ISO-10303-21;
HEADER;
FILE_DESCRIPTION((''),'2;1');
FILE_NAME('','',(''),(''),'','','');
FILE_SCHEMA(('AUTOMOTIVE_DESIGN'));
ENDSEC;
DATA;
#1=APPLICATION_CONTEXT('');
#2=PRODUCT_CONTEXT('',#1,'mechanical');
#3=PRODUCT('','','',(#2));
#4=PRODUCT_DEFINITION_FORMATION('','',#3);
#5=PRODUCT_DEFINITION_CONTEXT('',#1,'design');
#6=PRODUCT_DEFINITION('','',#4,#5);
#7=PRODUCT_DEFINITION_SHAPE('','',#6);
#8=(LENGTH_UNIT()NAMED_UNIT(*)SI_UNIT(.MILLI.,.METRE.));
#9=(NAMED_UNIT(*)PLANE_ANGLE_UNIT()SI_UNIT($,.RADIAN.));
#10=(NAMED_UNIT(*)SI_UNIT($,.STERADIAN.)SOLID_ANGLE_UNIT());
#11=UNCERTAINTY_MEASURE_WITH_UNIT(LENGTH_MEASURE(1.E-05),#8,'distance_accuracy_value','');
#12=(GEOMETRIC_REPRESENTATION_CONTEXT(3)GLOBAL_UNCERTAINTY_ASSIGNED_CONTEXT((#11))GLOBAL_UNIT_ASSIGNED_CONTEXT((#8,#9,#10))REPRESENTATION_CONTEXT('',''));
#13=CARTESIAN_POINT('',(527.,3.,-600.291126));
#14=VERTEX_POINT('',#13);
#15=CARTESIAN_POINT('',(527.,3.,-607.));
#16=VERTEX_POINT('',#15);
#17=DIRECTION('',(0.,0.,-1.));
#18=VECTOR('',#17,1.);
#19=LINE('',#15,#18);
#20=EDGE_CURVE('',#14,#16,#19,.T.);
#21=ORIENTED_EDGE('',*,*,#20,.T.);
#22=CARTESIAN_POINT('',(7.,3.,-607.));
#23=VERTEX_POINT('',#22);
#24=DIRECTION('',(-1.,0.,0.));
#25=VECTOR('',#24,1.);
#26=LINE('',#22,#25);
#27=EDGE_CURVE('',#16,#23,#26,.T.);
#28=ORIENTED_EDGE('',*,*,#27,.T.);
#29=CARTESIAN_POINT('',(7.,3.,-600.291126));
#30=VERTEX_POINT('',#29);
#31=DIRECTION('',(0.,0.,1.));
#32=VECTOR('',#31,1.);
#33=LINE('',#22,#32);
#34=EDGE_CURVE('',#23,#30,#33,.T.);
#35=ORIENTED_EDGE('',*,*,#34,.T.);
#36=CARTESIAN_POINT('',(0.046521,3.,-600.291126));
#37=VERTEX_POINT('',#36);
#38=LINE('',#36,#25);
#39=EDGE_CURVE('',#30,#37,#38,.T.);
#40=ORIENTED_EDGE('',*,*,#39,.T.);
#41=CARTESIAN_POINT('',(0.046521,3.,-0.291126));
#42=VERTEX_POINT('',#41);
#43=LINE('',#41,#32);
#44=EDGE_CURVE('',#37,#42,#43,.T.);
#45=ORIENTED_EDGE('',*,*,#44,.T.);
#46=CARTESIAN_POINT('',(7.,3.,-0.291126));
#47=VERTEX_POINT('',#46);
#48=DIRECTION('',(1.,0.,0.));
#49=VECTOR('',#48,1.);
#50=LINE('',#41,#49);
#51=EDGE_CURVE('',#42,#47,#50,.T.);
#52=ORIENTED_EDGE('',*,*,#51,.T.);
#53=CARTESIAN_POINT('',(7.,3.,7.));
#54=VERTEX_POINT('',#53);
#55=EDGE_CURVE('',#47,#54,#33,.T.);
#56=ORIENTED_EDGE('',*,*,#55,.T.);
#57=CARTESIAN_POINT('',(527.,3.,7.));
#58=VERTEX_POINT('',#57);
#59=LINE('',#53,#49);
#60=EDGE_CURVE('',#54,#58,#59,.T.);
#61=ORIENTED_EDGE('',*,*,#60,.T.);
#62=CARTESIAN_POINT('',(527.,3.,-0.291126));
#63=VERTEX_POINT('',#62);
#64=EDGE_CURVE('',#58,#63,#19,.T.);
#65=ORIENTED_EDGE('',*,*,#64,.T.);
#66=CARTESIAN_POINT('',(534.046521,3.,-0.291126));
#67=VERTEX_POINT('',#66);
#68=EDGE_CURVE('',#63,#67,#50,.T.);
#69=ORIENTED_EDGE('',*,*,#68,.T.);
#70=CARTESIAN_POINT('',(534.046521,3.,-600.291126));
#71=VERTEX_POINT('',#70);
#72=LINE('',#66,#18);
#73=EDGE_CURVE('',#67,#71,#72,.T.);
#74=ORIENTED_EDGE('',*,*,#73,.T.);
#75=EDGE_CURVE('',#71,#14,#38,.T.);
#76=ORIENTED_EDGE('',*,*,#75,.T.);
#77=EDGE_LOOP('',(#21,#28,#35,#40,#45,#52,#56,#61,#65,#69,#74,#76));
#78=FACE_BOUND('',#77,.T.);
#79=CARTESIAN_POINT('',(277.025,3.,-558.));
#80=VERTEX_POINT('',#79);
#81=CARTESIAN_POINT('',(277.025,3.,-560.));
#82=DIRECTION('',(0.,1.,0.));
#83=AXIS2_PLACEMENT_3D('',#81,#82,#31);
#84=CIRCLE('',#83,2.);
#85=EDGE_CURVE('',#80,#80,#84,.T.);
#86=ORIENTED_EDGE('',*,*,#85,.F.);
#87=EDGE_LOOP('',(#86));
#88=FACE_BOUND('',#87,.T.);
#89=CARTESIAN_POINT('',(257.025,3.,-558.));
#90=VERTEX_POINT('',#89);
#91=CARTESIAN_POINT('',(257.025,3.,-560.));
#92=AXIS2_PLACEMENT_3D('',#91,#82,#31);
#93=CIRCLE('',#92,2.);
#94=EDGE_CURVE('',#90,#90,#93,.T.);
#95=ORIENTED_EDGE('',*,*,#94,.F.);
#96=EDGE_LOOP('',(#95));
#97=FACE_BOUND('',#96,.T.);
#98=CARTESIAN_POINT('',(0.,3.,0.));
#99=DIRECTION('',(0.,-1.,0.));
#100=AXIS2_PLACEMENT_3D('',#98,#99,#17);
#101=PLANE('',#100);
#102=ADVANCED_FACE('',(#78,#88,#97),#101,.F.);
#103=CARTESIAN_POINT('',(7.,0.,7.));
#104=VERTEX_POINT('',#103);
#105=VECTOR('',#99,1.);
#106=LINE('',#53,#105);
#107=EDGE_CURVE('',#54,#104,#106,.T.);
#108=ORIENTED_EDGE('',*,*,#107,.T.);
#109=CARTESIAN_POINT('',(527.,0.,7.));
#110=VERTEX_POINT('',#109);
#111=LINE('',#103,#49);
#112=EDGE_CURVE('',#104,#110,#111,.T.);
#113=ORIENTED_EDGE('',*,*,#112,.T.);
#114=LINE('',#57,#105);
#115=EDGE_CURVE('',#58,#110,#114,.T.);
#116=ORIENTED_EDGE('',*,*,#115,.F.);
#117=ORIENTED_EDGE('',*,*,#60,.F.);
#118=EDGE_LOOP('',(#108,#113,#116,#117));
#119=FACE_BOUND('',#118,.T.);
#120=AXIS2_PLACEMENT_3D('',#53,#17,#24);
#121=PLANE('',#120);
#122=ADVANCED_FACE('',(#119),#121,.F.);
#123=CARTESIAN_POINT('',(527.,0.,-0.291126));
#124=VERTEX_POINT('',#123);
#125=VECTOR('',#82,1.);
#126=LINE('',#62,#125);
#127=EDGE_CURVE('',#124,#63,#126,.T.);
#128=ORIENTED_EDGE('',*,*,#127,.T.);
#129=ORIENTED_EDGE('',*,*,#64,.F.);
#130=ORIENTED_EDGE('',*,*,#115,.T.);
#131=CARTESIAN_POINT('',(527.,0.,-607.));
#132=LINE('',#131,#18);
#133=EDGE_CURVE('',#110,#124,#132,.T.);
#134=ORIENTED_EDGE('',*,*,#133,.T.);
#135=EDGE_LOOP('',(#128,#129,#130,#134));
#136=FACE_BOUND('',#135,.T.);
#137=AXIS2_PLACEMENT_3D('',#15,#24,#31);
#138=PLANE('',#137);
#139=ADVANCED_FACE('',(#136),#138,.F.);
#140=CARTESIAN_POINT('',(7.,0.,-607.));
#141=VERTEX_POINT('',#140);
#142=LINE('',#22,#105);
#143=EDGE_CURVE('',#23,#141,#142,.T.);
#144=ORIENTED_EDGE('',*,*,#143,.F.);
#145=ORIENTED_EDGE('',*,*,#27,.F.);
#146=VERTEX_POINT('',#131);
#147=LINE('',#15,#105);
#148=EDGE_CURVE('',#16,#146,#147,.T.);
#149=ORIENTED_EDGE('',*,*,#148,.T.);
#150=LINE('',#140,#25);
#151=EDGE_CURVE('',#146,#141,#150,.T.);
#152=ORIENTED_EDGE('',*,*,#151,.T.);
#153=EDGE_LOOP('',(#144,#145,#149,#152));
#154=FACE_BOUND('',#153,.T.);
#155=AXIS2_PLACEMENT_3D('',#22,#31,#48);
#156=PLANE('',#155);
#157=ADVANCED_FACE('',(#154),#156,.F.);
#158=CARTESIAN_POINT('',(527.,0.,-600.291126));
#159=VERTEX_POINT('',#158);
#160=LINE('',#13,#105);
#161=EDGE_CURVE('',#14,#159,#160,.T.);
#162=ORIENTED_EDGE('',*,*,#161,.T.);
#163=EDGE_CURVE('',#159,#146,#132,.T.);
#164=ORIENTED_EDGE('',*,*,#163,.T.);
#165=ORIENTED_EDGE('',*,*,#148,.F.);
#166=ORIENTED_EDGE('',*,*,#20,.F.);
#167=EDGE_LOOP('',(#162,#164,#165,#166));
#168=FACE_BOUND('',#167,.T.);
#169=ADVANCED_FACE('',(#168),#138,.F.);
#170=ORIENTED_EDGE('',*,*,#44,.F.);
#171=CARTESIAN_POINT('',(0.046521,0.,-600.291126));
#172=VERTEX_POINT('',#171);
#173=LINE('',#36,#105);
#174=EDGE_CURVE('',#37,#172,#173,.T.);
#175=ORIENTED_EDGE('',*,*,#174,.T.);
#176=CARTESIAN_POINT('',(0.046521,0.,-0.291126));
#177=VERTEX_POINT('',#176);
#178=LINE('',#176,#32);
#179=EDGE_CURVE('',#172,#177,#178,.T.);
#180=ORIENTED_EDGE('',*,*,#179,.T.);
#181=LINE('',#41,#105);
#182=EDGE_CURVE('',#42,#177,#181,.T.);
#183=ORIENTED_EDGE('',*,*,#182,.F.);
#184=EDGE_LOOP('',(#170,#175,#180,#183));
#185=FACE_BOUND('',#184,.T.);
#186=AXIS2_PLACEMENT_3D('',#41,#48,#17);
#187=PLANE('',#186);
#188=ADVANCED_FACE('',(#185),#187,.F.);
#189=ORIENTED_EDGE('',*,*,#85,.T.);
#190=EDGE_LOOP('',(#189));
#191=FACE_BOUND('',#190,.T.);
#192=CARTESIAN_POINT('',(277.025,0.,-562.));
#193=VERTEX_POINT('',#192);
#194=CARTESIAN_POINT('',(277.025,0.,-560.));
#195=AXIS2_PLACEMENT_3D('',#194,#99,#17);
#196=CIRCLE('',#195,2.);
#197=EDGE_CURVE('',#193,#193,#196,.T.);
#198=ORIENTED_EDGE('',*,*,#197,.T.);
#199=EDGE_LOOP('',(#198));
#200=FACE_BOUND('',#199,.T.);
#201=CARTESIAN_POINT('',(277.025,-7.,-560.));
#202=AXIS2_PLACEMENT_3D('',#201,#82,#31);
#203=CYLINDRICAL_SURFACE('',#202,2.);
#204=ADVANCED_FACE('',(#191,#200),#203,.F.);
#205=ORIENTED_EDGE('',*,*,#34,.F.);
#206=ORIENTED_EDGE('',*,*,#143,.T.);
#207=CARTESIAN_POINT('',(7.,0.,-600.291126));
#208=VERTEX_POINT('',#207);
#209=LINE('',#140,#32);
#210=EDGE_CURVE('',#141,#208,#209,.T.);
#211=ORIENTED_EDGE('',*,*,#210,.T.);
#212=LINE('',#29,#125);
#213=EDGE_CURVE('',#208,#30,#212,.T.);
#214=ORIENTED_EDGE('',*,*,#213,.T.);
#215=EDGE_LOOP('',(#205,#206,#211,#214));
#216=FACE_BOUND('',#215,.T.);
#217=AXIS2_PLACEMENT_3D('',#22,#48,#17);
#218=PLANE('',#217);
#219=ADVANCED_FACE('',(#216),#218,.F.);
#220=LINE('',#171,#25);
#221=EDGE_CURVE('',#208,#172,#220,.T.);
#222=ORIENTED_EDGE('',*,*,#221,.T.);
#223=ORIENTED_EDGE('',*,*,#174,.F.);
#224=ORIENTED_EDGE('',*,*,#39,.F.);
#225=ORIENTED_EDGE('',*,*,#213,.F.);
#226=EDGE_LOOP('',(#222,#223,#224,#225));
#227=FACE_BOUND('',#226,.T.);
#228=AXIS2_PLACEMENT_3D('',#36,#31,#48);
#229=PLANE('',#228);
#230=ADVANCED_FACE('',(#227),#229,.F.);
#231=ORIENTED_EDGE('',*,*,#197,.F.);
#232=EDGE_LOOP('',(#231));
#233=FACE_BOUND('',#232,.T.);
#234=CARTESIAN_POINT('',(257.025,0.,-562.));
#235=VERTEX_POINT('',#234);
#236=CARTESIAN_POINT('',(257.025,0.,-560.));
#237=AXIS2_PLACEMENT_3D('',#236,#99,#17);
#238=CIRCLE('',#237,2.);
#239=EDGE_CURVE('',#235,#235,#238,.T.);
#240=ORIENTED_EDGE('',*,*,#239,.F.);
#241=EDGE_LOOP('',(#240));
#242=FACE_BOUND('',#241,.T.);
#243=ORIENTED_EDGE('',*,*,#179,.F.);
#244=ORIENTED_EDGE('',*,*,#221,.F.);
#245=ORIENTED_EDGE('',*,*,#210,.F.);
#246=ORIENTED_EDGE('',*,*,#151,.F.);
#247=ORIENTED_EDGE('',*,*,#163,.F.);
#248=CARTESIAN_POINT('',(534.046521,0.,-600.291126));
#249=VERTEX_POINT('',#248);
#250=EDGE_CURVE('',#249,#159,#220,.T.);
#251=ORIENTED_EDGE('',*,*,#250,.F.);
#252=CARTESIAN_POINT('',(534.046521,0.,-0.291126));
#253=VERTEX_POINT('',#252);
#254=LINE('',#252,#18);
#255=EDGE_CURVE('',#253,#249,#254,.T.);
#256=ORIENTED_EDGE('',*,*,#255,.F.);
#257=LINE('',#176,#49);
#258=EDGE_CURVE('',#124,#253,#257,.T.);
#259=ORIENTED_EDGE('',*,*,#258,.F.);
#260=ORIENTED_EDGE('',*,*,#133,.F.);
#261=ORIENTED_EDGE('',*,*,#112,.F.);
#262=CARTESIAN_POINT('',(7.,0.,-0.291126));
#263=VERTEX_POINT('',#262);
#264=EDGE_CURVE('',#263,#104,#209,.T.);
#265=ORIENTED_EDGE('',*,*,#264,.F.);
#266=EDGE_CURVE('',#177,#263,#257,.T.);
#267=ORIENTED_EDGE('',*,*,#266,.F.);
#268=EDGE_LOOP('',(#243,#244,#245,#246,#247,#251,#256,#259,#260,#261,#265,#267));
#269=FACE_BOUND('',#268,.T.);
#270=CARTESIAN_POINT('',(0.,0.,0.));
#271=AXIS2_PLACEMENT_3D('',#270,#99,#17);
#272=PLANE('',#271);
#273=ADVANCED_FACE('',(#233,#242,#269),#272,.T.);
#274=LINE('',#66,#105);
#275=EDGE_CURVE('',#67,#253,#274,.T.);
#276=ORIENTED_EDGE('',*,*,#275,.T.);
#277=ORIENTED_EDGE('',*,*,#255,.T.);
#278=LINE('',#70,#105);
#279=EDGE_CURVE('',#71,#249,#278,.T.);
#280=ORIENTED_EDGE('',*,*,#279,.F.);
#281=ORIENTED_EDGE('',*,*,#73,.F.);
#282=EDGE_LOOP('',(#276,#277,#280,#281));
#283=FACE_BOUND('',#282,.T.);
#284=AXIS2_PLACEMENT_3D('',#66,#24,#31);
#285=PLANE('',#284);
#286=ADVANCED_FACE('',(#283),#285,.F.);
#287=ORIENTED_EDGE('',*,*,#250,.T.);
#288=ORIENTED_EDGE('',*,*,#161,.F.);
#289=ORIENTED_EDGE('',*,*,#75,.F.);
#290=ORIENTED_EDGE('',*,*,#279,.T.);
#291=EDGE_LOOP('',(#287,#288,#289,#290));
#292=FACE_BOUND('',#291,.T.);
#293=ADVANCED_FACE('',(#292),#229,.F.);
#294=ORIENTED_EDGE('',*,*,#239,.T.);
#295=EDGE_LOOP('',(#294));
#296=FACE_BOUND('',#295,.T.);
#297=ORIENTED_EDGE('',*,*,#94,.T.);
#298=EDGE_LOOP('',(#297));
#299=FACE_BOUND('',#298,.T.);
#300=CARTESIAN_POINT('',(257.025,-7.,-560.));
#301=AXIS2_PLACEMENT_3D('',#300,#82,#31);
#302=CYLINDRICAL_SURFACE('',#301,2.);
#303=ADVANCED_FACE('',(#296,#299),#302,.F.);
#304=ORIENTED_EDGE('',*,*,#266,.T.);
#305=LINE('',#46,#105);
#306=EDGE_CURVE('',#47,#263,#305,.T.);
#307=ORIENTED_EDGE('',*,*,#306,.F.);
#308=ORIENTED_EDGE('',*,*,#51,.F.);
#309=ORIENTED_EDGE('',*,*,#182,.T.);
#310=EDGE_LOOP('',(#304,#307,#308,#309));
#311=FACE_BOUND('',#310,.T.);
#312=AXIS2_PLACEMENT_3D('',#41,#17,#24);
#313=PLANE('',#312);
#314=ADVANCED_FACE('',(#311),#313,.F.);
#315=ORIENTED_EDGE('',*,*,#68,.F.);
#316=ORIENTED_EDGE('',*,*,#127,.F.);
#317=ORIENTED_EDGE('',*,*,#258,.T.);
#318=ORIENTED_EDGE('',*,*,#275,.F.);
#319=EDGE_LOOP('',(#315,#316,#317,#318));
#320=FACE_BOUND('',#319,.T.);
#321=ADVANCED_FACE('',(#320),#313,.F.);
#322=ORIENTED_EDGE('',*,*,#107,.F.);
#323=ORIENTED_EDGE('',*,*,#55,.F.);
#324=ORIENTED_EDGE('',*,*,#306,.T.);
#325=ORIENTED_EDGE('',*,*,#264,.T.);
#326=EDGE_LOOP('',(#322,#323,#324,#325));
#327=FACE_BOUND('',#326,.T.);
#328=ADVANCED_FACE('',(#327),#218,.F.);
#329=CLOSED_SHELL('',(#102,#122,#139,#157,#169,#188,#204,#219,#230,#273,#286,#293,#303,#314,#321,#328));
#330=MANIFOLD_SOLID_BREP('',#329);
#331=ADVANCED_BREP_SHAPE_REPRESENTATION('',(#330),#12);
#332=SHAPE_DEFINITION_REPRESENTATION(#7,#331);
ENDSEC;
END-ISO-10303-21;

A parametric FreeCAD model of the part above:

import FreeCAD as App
import Part
import Sketcher
Q = App.Units.Quantity

doc = App.newDocument("Part")
params = doc.addObject("Spreadsheet::Sheet", "Params")
for row, (alias, value) in enumerate([
    ("sketch1_width", "534 mm"),
    ("sketch1_height", "600 mm"),
    ("pad1_length", "3 mm"),
    ("sketch2_width", "520 mm"),
    ("sketch2_height", "614 mm"),
    ("pad2_length", "3 mm"),
    ("sketch3_diameter", "4 mm"),
    ("pocket1_length", "10 mm"),
], start=1):
    params.set(f"A{row}", alias)
    params.set(f"B{row}", "=" + value)
    params.setAlias(f"B{row}", alias)

body = doc.addObject("PartDesign::Body", "Body")

# Sketch on XZ plane
sketch1 = body.newObject("Sketcher::SketchObject", "Sketch")
sketch1.AttachmentSupport = (doc.getObject("XZ_Plane"), [""])
sketch1.MapMode = "FlatFace"
sketch1.addGeometry([
    Part.LineSegment(App.Vector(0, -600, 0), App.Vector(0, 0, 0)),
    Part.LineSegment(App.Vector(0, 0, 0), App.Vector(534, 0, 0)),
    Part.LineSegment(App.Vector(534, 0, 0), App.Vector(534, -600, 0)),
    Part.LineSegment(App.Vector(534, -600, 0), App.Vector(0, -600, 0)),
], False)
sketch1.addConstraint([
    Sketcher.Constraint("Coincident", 0, 2, 1, 1),
    Sketcher.Constraint("Coincident", 1, 2, 2, 1),
    Sketcher.Constraint("Coincident", 2, 2, 3, 1),
    Sketcher.Constraint("Coincident", 3, 2, 0, 1),
    Sketcher.Constraint("Vertical", 0),
    Sketcher.Constraint("Horizontal", 1),
    Sketcher.Constraint("Vertical", 2),
    Sketcher.Constraint("Horizontal", 3),
    Sketcher.Constraint("DistanceX", 1, 1, 1, 2, Q("534 mm")),
    Sketcher.Constraint("DistanceY", 0, 1, 0, 2, Q("600 mm")),
    Sketcher.Constraint("DistanceX", -1, 1, 0, 2, Q("0.046521 mm")),
    Sketcher.Constraint("DistanceY", 0, 2, -1, 1, Q("0.291126 mm")),
])
sketch1.setExpression("Constraints[8]", "Params.sketch1_width")
sketch1.setExpression("Constraints[9]", "Params.sketch1_height")
pad1 = body.newObject("PartDesign::Pad", "Pad")
pad1.Profile = sketch1
pad1.setExpression("Length", "Params.pad1_length")
pad1.Reversed = True

# Sketch on XZ plane
sketch2 = body.newObject("Sketcher::SketchObject", "Sketch001")
sketch2.AttachmentSupport = (doc.getObject("XZ_Plane"), [""])
sketch2.MapMode = "FlatFace"
sketch2.addGeometry([
    Part.LineSegment(App.Vector(7, -607, 0), App.Vector(7, 7, 0)),
    Part.LineSegment(App.Vector(7, 7, 0), App.Vector(527, 7, 0)),
    Part.LineSegment(App.Vector(527, 7, 0), App.Vector(527, -607, 0)),
    Part.LineSegment(App.Vector(527, -607, 0), App.Vector(7, -607, 0)),
], False)
sketch2.addConstraint([
    Sketcher.Constraint("Coincident", 0, 2, 1, 1),
    Sketcher.Constraint("Coincident", 1, 2, 2, 1),
    Sketcher.Constraint("Coincident", 2, 2, 3, 1),
    Sketcher.Constraint("Coincident", 3, 2, 0, 1),
    Sketcher.Constraint("Vertical", 0),
    Sketcher.Constraint("Horizontal", 1),
    Sketcher.Constraint("Vertical", 2),
    Sketcher.Constraint("Horizontal", 3),
    Sketcher.Constraint("DistanceX", 1, 1, 1, 2, Q("520 mm")),
    Sketcher.Constraint("DistanceY", 0, 1, 0, 2, Q("614 mm")),
    Sketcher.Constraint("DistanceX", -1, 1, 0, 2, Q("7 mm")),
    Sketcher.Constraint("DistanceY", -1, 1, 0, 2, Q("7 mm")),
])
sketch2.setExpression("Constraints[8]", "Params.sketch2_width")
sketch2.setExpression("Constraints[9]", "Params.sketch2_height")
pad2 = body.newObject("PartDesign::Pad", "Pad001")
pad2.Profile = sketch2
pad2.setExpression("Length", "Params.pad2_length")
pad2.Reversed = True

# Sketch on XZ plane
sketch3 = body.newObject("Sketcher::SketchObject", "Sketch002")
sketch3.AttachmentSupport = (doc.getObject("XZ_Plane"), [""])
sketch3.MapMode = "FlatFace"
sketch3.AttachmentOffset = App.Placement(App.Vector(0, 0, -3), App.Rotation())
sketch3.addGeometry([
    Part.Circle(App.Vector(257, -560, 0), App.Vector(0, 0, 1), 2),
    Part.Circle(App.Vector(277, -560, 0), App.Vector(0, 0, 1), 2),
], False)
sketch3.addConstraint([
    Sketcher.Constraint("Equal", 0, 1),
    Sketcher.Constraint("Horizontal", 0, 3, 1, 3),
    Sketcher.Constraint("Diameter", 0, Q("4 mm")),
    Sketcher.Constraint("DistanceY", 0, 3, -1, 1, Q("560 mm")),
    Sketcher.Constraint("DistanceX", 0, 3, 1, 3, Q("20 mm")),
    Sketcher.Constraint("DistanceX", -1, 1, 0, 3, Q("257.025 mm")),
])
sketch3.setExpression("Constraints[2]", "Params.sketch3_diameter")
pocket1 = body.newObject("PartDesign::Pocket", "Pocket")
pocket1.Profile = sketch3
pocket1.setExpression("Length", "Params.pocket1_length")
pocket1.Reversed = True

doc.recompute()
